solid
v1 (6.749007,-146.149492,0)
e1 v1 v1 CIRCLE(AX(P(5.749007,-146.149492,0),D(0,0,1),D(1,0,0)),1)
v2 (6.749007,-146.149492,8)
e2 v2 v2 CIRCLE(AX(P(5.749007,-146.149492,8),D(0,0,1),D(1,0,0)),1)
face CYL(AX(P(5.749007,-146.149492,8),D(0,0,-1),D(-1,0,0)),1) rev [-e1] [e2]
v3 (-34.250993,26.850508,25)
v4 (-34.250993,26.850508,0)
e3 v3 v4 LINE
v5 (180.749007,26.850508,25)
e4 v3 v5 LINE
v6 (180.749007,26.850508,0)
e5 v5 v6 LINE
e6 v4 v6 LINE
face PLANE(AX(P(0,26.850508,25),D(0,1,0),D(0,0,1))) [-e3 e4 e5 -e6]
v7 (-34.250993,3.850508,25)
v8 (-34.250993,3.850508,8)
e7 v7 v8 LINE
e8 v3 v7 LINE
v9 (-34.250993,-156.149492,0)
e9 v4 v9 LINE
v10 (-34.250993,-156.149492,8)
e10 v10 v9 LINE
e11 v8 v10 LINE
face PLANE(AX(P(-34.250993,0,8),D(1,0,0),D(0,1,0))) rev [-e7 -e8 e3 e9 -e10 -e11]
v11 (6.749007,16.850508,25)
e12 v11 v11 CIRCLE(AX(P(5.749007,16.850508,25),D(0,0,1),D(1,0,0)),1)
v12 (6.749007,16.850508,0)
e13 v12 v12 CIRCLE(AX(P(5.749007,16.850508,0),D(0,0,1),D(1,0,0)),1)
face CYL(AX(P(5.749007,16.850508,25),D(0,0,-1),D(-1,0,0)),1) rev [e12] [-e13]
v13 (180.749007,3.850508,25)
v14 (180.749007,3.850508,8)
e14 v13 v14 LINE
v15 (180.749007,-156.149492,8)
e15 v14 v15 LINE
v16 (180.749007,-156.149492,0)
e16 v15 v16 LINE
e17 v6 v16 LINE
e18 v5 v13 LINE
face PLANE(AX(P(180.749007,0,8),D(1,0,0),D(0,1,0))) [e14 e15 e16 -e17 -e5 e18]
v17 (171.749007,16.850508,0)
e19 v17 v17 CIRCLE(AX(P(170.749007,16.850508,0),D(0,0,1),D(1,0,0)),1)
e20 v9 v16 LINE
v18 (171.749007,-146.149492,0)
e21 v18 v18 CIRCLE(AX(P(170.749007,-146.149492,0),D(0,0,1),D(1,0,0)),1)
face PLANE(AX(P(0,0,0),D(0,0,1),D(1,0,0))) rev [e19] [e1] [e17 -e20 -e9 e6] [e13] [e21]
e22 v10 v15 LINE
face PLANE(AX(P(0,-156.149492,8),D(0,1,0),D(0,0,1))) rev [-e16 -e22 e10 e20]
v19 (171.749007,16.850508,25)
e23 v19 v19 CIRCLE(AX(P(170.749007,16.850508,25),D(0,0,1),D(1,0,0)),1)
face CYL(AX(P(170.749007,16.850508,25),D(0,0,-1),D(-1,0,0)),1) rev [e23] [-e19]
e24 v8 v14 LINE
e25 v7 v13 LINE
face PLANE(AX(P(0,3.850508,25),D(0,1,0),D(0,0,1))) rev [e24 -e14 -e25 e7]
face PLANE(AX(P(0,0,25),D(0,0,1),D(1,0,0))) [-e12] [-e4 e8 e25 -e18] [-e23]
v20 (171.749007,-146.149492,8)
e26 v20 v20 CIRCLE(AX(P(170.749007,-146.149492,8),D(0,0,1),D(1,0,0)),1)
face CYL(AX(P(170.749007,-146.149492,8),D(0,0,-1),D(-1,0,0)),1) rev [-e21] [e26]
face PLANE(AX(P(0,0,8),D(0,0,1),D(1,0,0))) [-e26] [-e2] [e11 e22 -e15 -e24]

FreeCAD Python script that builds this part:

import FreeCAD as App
import Part
import Sketcher
from FreeCAD import Vector
Q = App.Units.Quantity


def add_polygon(sketch, points):
    """Adds a closed chain of lines whose ends are joined by coincident constraints."""
    first, n = sketch.GeometryCount, len(points)
    for a, b in zip(points, points[1:] + points[:1]):
        sketch.addGeometry(Part.LineSegment(App.Vector(*a, 0), App.Vector(*b, 0)), False)
    for i in range(n):
        sketch.addConstraint(Sketcher.Constraint("Coincident", first + i, 2, first + (i + 1) % n, 1))

doc = App.newDocument("Part")
body = doc.addObject("PartDesign::Body", "Body")

# Sketch on XY plane
sketch1 = body.newObject("Sketcher::SketchObject", "Sketch")
sketch1.AttachmentSupport = (doc.getObject("XY_Plane"), [""])
sketch1.MapMode = "FlatFace"
add_polygon(sketch1, [(-34.250993, 3.850508), (-34.250993, -156.149492), (180.749007, -156.149492), (180.749007, 3.850508)])  # lines 0-3
sketch1.addGeometry(Part.Circle(Vector(5.749007, -146.149492, 0), Vector(0, 0, 1), 1), False)  # 4
sketch1.addGeometry(Part.Circle(Vector(170.749007, -146.149492, 0), Vector(0, 0, 1), 1), False)  # 5
sketch1.addConstraint(Sketcher.Constraint("Vertical", 0))
sketch1.addConstraint(Sketcher.Constraint("Horizontal", 1))
sketch1.addConstraint(Sketcher.Constraint("Vertical", 2))
sketch1.addConstraint(Sketcher.Constraint("Horizontal", 3))
sketch1.addConstraint(Sketcher.Constraint("Equal", 4, 5))
sketch1.addConstraint(Sketcher.Constraint("Horizontal", 4, 3, 5, 3))
sketch1.addConstraint(Sketcher.Constraint("Diameter", 4, Q("2 mm")))
sketch1.addConstraint(Sketcher.Constraint("DistanceX", 1, 1, 1, 2, Q("215 mm")))
sketch1.addConstraint(Sketcher.Constraint("DistanceY", 0, 2, 0, 1, Q("160 mm")))
sketch1.addConstraint(Sketcher.Constraint("DistanceX", 4, 3, 5, 3, Q("165 mm")))
sketch1.addConstraint(Sketcher.Constraint("DistanceX", 0, 2, 4, 3, Q("40 mm")))
sketch1.addConstraint(Sketcher.Constraint("DistanceY", 0, 2, 4, 3, Q("10 mm")))
sketch1.addConstraint(Sketcher.Constraint("DistanceX", -1, 1, 4, 3, Q("5.749007 mm")))
sketch1.addConstraint(Sketcher.Constraint("DistanceY", 4, 3, -1, 1, Q("146.149492 mm")))
pad1 = body.newObject("PartDesign::Pad", "Pad")
pad1.Profile = sketch1
pad1.Length = 8

# Sketch on XY plane
sketch2 = body.newObject("Sketcher::SketchObject", "Sketch001")
sketch2.AttachmentSupport = (doc.getObject("XY_Plane"), [""])
sketch2.MapMode = "FlatFace"
add_polygon(sketch2, [(-34.250993, 26.850508), (-34.250993, 3.850508), (180.749007, 3.850508), (180.749007, 26.850508)])  # lines 0-3
sketch2.addGeometry(Part.Circle(Vector(5.749007, 16.850508, 0), Vector(0, 0, 1), 1), False)  # 4
sketch2.addGeometry(Part.Circle(Vector(170.749007, 16.850508, 0), Vector(0, 0, 1), 1), False)  # 5
sketch2.addConstraint(Sketcher.Constraint("Vertical", 0))
sketch2.addConstraint(Sketcher.Constraint("Horizontal", 1))
sketch2.addConstraint(Sketcher.Constraint("Vertical", 2))
sketch2.addConstraint(Sketcher.Constraint("Horizontal", 3))
sketch2.addConstraint(Sketcher.Constraint("Equal", 4, 5))
sketch2.addConstraint(Sketcher.Constraint("Horizontal", 4, 3, 5, 3))
sketch2.addConstraint(Sketcher.Constraint("Diameter", 4, Q("2 mm")))
sketch2.addConstraint(Sketcher.Constraint("DistanceX", 1, 1, 1, 2, Q("215 mm")))
sketch2.addConstraint(Sketcher.Constraint("DistanceY", 0, 2, 0, 1, Q("23 mm")))
sketch2.addConstraint(Sketcher.Constraint("DistanceX", 4, 3, 5, 3, Q("165 mm")))
sketch2.addConstraint(Sketcher.Constraint("DistanceX", 0, 2, 4, 3, Q("40 mm")))
sketch2.addConstraint(Sketcher.Constraint("DistanceY", 0, 2, 4, 3, Q("13 mm")))
sketch2.addConstraint(Sketcher.Constraint("DistanceX", -1, 1, 4, 3, Q("5.749007 mm")))
sketch2.addConstraint(Sketcher.Constraint("DistanceY", -1, 1, 4, 3, Q("16.850508 mm")))
pad2 = body.newObject("PartDesign::Pad", "Pad001")
pad2.Profile = sketch2
pad2.Length = 25

doc.recompute()
